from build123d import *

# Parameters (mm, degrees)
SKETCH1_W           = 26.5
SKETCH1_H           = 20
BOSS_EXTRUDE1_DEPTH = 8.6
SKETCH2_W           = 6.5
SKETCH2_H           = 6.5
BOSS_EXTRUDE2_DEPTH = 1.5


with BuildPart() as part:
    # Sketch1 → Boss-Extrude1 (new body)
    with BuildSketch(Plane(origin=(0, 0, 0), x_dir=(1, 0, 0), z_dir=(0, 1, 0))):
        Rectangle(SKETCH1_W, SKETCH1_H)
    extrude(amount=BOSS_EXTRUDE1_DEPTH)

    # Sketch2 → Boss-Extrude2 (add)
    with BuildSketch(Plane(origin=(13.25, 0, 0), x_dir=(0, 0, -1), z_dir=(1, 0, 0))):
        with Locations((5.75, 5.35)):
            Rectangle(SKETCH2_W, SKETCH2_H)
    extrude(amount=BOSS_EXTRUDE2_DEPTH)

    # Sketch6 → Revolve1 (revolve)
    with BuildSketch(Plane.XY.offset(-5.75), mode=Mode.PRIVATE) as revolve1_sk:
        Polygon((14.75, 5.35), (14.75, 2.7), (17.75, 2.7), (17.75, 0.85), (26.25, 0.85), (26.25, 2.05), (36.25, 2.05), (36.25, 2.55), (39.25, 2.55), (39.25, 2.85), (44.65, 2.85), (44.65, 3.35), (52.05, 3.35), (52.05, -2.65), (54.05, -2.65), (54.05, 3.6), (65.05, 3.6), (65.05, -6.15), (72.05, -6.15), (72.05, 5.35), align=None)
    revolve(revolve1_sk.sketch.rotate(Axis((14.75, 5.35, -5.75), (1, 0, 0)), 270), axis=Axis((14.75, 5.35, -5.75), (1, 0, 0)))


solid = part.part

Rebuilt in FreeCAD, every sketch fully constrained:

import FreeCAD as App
import Part
import Sketcher

V = App.Vector
Q = App.Units.Quantity


def add_polygon(sketch, points):
    """Adds a closed chain of lines whose ends are joined by coincident constraints."""
    first, n = sketch.GeometryCount, len(points)
    for a, b in zip(points, points[1:] + points[:1]):
        sketch.addGeometry(Part.LineSegment(App.Vector(*a, 0), App.Vector(*b, 0)), False)
    for i in range(n):
        sketch.addConstraint(Sketcher.Constraint("Coincident", first + i, 2, first + (i + 1) % n, 1))

doc = App.newDocument("Part")
params = doc.addObject("Spreadsheet::Sheet", "Params")
for row, (alias, value) in enumerate([
    ("sketch1_height", "20 mm"),
    ("sketch1_width", "26.5 mm"),
    ("pad1_length", "8.6 mm"),
    ("sketch2_width", "6.5 mm"),
    ("pad2_length", "1.5 mm"),
    ("sketch3_width", "3 mm"),
    ("sketch3_width2", "10 mm"),
    ("sketch3_width3", "2 mm"),
    ("sketch3_width4", "11 mm"),
    ("sketch3_width5", "7 mm"),
    ("revolution_angle", "360 deg"),
], start=1):
    params.set(f"A{row}", alias)
    params.set(f"B{row}", "=" + value)
    params.setAlias(f"B{row}", alias)

body = doc.addObject("PartDesign::Body", "Body")

sketch1 = body.newObject("Sketcher::SketchObject", "Sketch")
sketch1.AttachmentSupport = (doc.getObject("XZ_Plane"), [""])
sketch1.MapMode = "FlatFace"
add_polygon(sketch1, [(-13, -10), (-13, 10), (13, 10), (13, -10)])
sketch1.addConstraint(Sketcher.Constraint("Vertical", 0))
sketch1.addConstraint(Sketcher.Constraint("Horizontal", 1))
sketch1.addConstraint(Sketcher.Constraint("Vertical", 2))
sketch1.addConstraint(Sketcher.Constraint("Horizontal", 3))
sketch1.addConstraint(Sketcher.Constraint("Symmetric", 0, 2, 2, 2, -1, 1))
sketch1.addConstraint(Sketcher.Constraint("DistanceY", 0, 1, 0, 2, Q("20 mm")))
sketch1.addConstraint(Sketcher.Constraint("DistanceX", 1, 1, 1, 2, Q("26.5 mm")))
sketch1.setExpression("Constraints[9]", "Params.sketch1_height")
sketch1.setExpression("Constraints[10]", "Params.sketch1_width")
pad1 = body.newObject("PartDesign::Pad", "Pad")
pad1.Profile = sketch1
pad1.setExpression("Length", "Params.pad1_length")
pad1.Reversed = True

sketch2 = body.newObject("Sketcher::SketchObject", "Sketch001")
sketch2.AttachmentSupport = (doc.getObject("YZ_Plane"), [""])
sketch2.MapMode = "FlatFace"
sketch2.AttachmentOffset = App.Placement(V(0, 0, 13.25), App.Rotation())
add_polygon(sketch2, [(9, -2), (2, -2), (2, -9), (9, -9)])
sketch2.addConstraint(Sketcher.Constraint("Horizontal", 0))
sketch2.addConstraint(Sketcher.Constraint("Vertical", 1))
sketch2.addConstraint(Sketcher.Constraint("Horizontal", 2))
sketch2.addConstraint(Sketcher.Constraint("Vertical", 3))
sketch2.addConstraint(Sketcher.Constraint("Equal", 2, 1))
sketch2.addConstraint(Sketcher.Constraint("DistanceX", 0, 2, 0, 1, Q("6.5 mm")))
sketch2.addConstraint(Sketcher.Constraint("DistanceY", 1, 2, -1, 1, Q("9 mm")))
sketch2.addConstraint(Sketcher.Constraint("DistanceX", -1, 1, 0, 2, Q("2.1 mm")))
sketch2.setExpression("Constraints[9]", "Params.sketch2_width")
pad2 = body.newObject("PartDesign::Pad", "Pad001")
pad2.Profile = sketch2
pad2.setExpression("Length", "Params.pad2_length")

sketch3 = body.newObject("Sketcher::SketchObject", "Sketch002")
sketch3.AttachmentSupport = (doc.getObject("XY_Plane"), [""])
sketch3.MapMode = "FlatFace"
sketch3.AttachmentOffset = App.Placement(V(0, 0, -5.75), App.Rotation())
add_polygon(sketch3, [(14.75, 5.35), (14.75, 2.7), (17.75, 2.7), (17.75, 0.85), (26.25, 0.85), (26.25, 2.05), (36.25, 2.05), (36.25, 2.55), (39.25, 2.55), (39.25, 2.85), (44.65, 2.85), (44.65, 3.35), (52.05, 3.35), (52.05, -2.65), (54.05, -2.65), (54.05, 3.6), (65.05, 3.6), (65.05, -6.15), (72.05, -6.15), (72.05, 5.35)])
sketch3.addGeometry(Part.LineSegment(V(14.75, 5.35, 0), V(72.05, 5.35, 0)), True)
sketch3.addConstraint(Sketcher.Constraint("Vertical", 0))
sketch3.addConstraint(Sketcher.Constraint("Horizontal", 1))
sketch3.addConstraint(Sketcher.Constraint("Vertical", 2))
sketch3.addConstraint(Sketcher.Constraint("Horizontal", 3))
sketch3.addConstraint(Sketcher.Constraint("Vertical", 4))
sketch3.addConstraint(Sketcher.Constraint("Horizontal", 5))
sketch3.addConstraint(Sketcher.Constraint("Vertical", 6))
sketch3.addConstraint(Sketcher.Constraint("Horizontal", 7))
sketch3.addConstraint(Sketcher.Constraint("Vertical", 8))
sketch3.addConstraint(Sketcher.Constraint("Horizontal", 9))
sketch3.addConstraint(Sketcher.Constraint("Vertical", 10))
sketch3.addConstraint(Sketcher.Constraint("Horizontal", 11))
sketch3.addConstraint(Sketcher.Constraint("Vertical", 12))
sketch3.addConstraint(Sketcher.Constraint("Horizontal", 13))
sketch3.addConstraint(Sketcher.Constraint("Vertical", 14))
sketch3.addConstraint(Sketcher.Constraint("Horizontal", 15))
sketch3.addConstraint(Sketcher.Constraint("Vertical", 16))
sketch3.addConstraint(Sketcher.Constraint("Horizontal", 17))
sketch3.addConstraint(Sketcher.Constraint("Vertical", 18))
sketch3.addConstraint(Sketcher.Constraint("Horizontal", 19))
sketch3.addConstraint(Sketcher.Constraint("Horizontal", 20))
sketch3.addConstraint(Sketcher.Constraint("Coincident", 20, 1, 19, 2))
sketch3.addConstraint(Sketcher.Constraint("Vertical", 17, 2, 20, 2))
sketch3.addConstraint(Sketcher.Constraint("Equal", 1, 7))
sketch3.addConstraint(Sketcher.Constraint("Equal", 6, 10))
sketch3.addConstraint(Sketcher.Constraint("DistanceX", 1, 1, 1, 2, Q("3 mm")))
sketch3.addConstraint(Sketcher.Constraint("DistanceX", 5, 1, 5, 2, Q("10 mm")))
sketch3.addConstraint(Sketcher.Constraint("DistanceX", 13, 1, 13, 2, Q("2 mm")))
sketch3.addConstraint(Sketcher.Constraint("DistanceX", 15, 1, 15, 2, Q("11 mm")))
sketch3.addConstraint(Sketcher.Constraint("DistanceX", 17, 1, 17, 2, Q("7 mm")))
sketch3.addConstraint(Sketcher.Constraint("DistanceY", 12, 2, 12, 1, Q("6 mm")))
sketch3.addConstraint(Sketcher.Constraint("DistanceX", 3, 1, 3, 2, Q("8.5 mm")))
sketch3.addConstraint(Sketcher.Constraint("DistanceX", 9, 1, 9, 2, Q("5.4 mm")))
sketch3.addConstraint(Sketcher.Constraint("DistanceX", 11, 1, 11, 2, Q("7.4 mm")))
sketch3.addConstraint(Sketcher.Constraint("DistanceY", 4, 1, 4, 2, Q("1.2 mm")))
sketch3.addConstraint(Sketcher.Constraint("DistanceY", 6, 1, 6, 2, Q("0.5 mm")))
sketch3.addConstraint(Sketcher.Constraint("DistanceY", 8, 1, 8, 2, Q("0.3 mm")))
sketch3.addConstraint(Sketcher.Constraint("DistanceY", 18, 1, 18, 2, Q("11.5 mm")))
sketch3.addConstraint(Sketcher.Constraint("DistanceY", 13, 2, 18, 2, Q("8 mm")))
sketch3.addConstraint(Sketcher.Constraint("DistanceY", 0, 2, 0, 1, Q("2.65 mm")))
sketch3.addConstraint(Sketcher.Constraint("DistanceY", 14, 1, 14, 2, Q("6.25 mm")))
sketch3.addConstraint(Sketcher.Constraint("DistanceY", -1, 1, 0, 2, Q("2.7 mm")))
sketch3.addConstraint(Sketcher.Constraint("DistanceX", -1, 1, 0, 2, Q("14.75 mm")))
sketch3.setExpression("Constraints[45]", "Params.sketch3_width")
sketch3.setExpression("Constraints[46]", "Params.sketch3_width2")
sketch3.setExpression("Constraints[47]", "Params.sketch3_width3")
sketch3.setExpression("Constraints[48]", "Params.sketch3_width4")
sketch3.setExpression("Constraints[49]", "Params.sketch3_width5")
revolution = body.newObject("PartDesign::Revolution", "Revolution")
revolution.Profile = sketch3
revolution.ReferenceAxis = (sketch3, ["Axis0"])
revolution.setExpression("Angle", "Params.revolution_angle")

doc.recompute()
